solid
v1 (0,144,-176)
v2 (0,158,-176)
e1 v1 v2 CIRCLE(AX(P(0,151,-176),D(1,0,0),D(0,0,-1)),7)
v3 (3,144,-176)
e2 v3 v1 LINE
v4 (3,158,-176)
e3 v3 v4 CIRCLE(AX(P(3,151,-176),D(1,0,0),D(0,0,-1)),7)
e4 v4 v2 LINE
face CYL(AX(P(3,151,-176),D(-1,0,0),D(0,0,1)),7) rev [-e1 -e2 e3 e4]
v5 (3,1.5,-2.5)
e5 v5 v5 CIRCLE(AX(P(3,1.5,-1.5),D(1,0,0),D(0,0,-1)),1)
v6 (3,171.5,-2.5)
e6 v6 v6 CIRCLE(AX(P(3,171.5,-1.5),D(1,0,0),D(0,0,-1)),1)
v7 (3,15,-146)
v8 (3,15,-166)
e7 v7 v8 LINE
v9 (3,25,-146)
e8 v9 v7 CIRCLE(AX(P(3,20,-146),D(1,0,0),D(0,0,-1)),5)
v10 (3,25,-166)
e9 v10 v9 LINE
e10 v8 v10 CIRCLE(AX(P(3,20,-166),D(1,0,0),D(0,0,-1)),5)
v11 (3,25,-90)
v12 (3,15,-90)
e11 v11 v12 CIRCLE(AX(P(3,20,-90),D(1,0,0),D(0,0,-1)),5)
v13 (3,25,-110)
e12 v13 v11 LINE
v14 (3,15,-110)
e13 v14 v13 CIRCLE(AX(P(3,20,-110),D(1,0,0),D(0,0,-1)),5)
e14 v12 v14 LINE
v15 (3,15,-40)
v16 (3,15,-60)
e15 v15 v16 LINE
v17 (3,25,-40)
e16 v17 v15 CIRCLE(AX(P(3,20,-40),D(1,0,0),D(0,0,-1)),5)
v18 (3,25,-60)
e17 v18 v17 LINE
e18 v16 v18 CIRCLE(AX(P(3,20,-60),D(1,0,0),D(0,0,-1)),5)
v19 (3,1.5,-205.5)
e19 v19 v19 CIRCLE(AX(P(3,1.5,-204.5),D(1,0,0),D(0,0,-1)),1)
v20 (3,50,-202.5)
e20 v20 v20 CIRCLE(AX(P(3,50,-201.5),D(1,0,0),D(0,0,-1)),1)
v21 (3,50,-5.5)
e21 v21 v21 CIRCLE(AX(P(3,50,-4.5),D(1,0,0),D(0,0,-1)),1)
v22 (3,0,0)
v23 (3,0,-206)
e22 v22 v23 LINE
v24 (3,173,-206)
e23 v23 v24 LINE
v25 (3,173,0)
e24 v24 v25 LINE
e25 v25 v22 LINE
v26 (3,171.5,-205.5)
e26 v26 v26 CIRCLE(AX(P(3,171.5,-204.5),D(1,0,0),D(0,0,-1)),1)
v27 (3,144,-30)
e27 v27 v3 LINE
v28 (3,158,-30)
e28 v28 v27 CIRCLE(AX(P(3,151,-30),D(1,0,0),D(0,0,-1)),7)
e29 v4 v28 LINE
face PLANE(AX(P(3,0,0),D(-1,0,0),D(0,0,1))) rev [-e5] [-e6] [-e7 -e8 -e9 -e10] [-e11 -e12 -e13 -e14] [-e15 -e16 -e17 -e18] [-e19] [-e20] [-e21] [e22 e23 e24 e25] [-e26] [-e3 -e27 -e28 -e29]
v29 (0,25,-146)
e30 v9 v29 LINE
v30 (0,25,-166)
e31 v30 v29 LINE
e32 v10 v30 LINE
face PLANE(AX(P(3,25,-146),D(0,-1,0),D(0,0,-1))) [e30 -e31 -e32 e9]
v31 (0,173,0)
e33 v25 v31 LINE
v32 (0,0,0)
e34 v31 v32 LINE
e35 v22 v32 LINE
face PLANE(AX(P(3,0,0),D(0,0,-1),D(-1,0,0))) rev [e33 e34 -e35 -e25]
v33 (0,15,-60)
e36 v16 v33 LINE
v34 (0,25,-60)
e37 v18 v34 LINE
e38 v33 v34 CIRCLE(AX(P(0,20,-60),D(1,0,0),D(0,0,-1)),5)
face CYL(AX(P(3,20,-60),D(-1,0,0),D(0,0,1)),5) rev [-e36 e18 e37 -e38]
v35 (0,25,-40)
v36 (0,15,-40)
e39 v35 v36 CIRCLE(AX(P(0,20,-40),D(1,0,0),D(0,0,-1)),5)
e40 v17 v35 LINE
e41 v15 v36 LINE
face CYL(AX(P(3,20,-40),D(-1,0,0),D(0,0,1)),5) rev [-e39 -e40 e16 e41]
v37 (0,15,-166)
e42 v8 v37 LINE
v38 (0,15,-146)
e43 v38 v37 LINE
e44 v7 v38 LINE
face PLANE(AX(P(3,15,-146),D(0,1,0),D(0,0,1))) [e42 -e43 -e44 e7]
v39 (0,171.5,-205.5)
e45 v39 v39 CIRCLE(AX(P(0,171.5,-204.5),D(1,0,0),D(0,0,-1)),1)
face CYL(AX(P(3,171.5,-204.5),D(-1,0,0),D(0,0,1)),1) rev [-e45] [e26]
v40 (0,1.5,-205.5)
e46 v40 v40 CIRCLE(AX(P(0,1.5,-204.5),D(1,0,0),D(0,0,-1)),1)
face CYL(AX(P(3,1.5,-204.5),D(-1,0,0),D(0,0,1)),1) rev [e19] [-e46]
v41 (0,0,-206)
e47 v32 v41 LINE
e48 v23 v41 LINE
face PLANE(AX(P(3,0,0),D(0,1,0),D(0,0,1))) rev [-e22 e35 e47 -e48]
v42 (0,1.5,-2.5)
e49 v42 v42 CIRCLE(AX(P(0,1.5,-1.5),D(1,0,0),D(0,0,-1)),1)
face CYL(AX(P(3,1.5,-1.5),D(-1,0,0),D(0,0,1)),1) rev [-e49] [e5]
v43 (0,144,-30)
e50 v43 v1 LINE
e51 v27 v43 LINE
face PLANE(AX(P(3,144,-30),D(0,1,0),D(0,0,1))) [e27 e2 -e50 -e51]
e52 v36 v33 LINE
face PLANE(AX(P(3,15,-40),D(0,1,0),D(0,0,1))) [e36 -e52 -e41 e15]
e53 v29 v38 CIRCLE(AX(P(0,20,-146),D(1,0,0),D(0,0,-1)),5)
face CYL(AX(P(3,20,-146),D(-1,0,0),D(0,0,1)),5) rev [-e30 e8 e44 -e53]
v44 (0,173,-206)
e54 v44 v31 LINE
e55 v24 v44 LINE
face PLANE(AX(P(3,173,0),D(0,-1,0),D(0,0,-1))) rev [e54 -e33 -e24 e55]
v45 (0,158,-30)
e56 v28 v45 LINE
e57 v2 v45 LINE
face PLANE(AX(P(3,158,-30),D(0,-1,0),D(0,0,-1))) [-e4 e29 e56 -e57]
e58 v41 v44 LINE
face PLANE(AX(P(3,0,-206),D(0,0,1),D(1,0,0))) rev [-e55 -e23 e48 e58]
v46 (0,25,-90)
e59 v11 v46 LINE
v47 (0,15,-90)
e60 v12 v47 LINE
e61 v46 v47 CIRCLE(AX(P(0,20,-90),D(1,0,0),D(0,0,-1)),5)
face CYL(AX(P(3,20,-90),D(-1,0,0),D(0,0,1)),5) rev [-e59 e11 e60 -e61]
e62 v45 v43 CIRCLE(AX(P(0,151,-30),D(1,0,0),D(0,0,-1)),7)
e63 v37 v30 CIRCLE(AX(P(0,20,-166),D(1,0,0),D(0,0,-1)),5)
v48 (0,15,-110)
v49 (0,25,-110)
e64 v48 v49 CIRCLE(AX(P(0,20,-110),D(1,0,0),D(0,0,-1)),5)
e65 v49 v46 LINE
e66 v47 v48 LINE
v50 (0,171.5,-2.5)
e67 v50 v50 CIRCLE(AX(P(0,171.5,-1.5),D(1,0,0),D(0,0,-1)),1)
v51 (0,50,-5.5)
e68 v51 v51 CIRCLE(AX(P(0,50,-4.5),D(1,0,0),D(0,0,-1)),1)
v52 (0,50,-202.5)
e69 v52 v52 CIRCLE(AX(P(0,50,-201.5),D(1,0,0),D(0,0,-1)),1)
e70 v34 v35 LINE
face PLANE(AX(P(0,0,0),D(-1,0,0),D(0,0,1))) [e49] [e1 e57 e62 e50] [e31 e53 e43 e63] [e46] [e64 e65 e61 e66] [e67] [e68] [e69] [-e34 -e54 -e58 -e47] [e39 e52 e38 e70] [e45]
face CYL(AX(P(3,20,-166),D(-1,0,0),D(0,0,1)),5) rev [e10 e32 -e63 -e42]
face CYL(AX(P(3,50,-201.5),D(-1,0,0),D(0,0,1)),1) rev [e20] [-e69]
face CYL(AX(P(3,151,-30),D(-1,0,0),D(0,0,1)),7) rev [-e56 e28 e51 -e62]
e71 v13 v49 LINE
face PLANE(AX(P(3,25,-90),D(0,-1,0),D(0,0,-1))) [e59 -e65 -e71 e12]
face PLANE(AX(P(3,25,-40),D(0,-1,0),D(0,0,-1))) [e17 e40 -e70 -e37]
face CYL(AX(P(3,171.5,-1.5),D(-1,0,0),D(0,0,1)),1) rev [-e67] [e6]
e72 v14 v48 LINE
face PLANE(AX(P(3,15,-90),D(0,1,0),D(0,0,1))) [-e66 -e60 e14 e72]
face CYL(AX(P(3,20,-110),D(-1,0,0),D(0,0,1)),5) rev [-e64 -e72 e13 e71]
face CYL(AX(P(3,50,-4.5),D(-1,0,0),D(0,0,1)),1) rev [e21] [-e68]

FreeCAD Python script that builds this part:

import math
import FreeCAD as App
import Part
import Sketcher
from FreeCAD import Vector

doc = App.newDocument("Part")
body = doc.addObject("PartDesign::Body", "Body")

# Sketch on YZ plane
sketch1 = body.newObject("Sketcher::SketchObject", "Sketch")
sketch1.AttachmentSupport = (doc.getObject("YZ_Plane"), [""])
sketch1.MapMode = "FlatFace"
sketch1.addGeometry(Part.LineSegment(Vector(173, 0, 0), Vector(0, 0, 0)), False)
sketch1.addGeometry(Part.LineSegment(Vector(0, 0, 0), Vector(0, -206, 0)), False)
sketch1.addGeometry(Part.LineSegment(Vector(0, -206, 0), Vector(173, -206, 0)), False)
sketch1.addGeometry(Part.LineSegment(Vector(173, -206, 0), Vector(173, 0, 0)), False)
sketch1.addGeometry(Part.Circle(Vector(1.5, -1.5, 0), Vector(0, 0, 1), 1), False)
sketch1.addGeometry(Part.ArcOfCircle(Part.Circle(Vector(20, -40, 0), Vector(0, 0, 1), 5), math.radians(0), math.radians(180)), False)
sketch1.addGeometry(Part.LineSegment(Vector(25, -40, 0), Vector(25, -60, 0)), False)
sketch1.addGeometry(Part.ArcOfCircle(Part.Circle(Vector(20, -60, 0), Vector(0, 0, 1), 5), math.radians(180), math.radians(360)), False)
sketch1.addGeometry(Part.LineSegment(Vector(15, -60, 0), Vector(15, -40, 0)), False)
sketch1.addGeometry(Part.ArcOfCircle(Part.Circle(Vector(20, -90, 0), Vector(0, 0, 1), 5), math.radians(0), math.radians(180)), False)
sketch1.addGeometry(Part.LineSegment(Vector(25, -90, 0), Vector(25, -110, 0)), False)
sketch1.addGeometry(Part.ArcOfCircle(Part.Circle(Vector(20, -110, 0), Vector(0, 0, 1), 5), math.radians(180), math.radians(360)), False)
sketch1.addGeometry(Part.LineSegment(Vector(15, -110, 0), Vector(15, -90, 0)), False)
sketch1.addGeometry(Part.Circle(Vector(50, -4.5, 0), Vector(0, 0, 1), 1), False)
sketch1.addGeometry(Part.ArcOfCircle(Part.Circle(Vector(20, -146, 0), Vector(0, 0, 1), 5), math.radians(0), math.radians(180)), False)
sketch1.addGeometry(Part.LineSegment(Vector(25, -146, 0), Vector(25, -166, 0)), False)
sketch1.addGeometry(Part.ArcOfCircle(Part.Circle(Vector(20, -166, 0), Vector(0, 0, 1), 5), math.radians(180), math.radians(360)), False)
sketch1.addGeometry(Part.LineSegment(Vector(15, -166, 0), Vector(15, -146, 0)), False)
sketch1.addGeometry(Part.Circle(Vector(1.5, -204.5, 0), Vector(0, 0, 1), 1), False)
sketch1.addGeometry(Part.Circle(Vector(50, -201.5, 0), Vector(0, 0, 1), 1), False)
sketch1.addGeometry(Part.Circle(Vector(171.5, -1.5, 0), Vector(0, 0, 1), 1), False)
sketch1.addGeometry(Part.ArcOfCircle(Part.Circle(Vector(151, -30, 0), Vector(0, 0, 1), 7), math.radians(0), math.radians(180)), False)
sketch1.addGeometry(Part.LineSegment(Vector(158, -30, 0), Vector(158, -176, 0)), False)
sketch1.addGeometry(Part.ArcOfCircle(Part.Circle(Vector(151, -176, 0), Vector(0, 0, 1), 7), math.radians(180), math.radians(360)), False)
sketch1.addGeometry(Part.LineSegment(Vector(144, -176, 0), Vector(144, -30, 0)), False)
sketch1.addGeometry(Part.Circle(Vector(171.5, -204.5, 0), Vector(0, 0, 1), 1), False)
sketch1.addConstraint(Sketcher.Constraint("Coincident", 0, 2, 1, 1))
sketch1.addConstraint(Sketcher.Constraint("Coincident", 1, 2, 2, 1))
sketch1.addConstraint(Sketcher.Constraint("Coincident", 2, 2, 3, 1))
sketch1.addConstraint(Sketcher.Constraint("Coincident", 3, 2, 0, 1))
sketch1.addConstraint(Sketcher.Constraint("Tangent", 5, 1, 6, 1))
sketch1.addConstraint(Sketcher.Constraint("Tangent", 6, 2, 7, 2))
sketch1.addConstraint(Sketcher.Constraint("Tangent", 7, 1, 8, 1))
sketch1.addConstraint(Sketcher.Constraint("Tangent", 8, 2, 5, 2))
sketch1.addConstraint(Sketcher.Constraint("Tangent", 9, 1, 10, 1))
sketch1.addConstraint(Sketcher.Constraint("Tangent", 10, 2, 11, 2))
sketch1.addConstraint(Sketcher.Constraint("Tangent", 11, 1, 12, 1))
sketch1.addConstraint(Sketcher.Constraint("Tangent", 12, 2, 9, 2))
sketch1.addConstraint(Sketcher.Constraint("Tangent", 14, 1, 15, 1))
sketch1.addConstraint(Sketcher.Constraint("Tangent", 15, 2, 16, 2))
sketch1.addConstraint(Sketcher.Constraint("Tangent", 16, 1, 17, 1))
sketch1.addConstraint(Sketcher.Constraint("Tangent", 17, 2, 14, 2))
sketch1.addConstraint(Sketcher.Constraint("Tangent", 21, 1, 22, 1))
sketch1.addConstraint(Sketcher.Constraint("Tangent", 22, 2, 23, 2))
sketch1.addConstraint(Sketcher.Constraint("Tangent", 23, 1, 24, 1))
sketch1.addConstraint(Sketcher.Constraint("Tangent", 24, 2, 21, 2))
sketch1.addConstraint(Sketcher.Constraint("Horizontal", 0))
sketch1.addConstraint(Sketcher.Constraint("Vertical", 1))
sketch1.addConstraint(Sketcher.Constraint("Horizontal", 2))
sketch1.addConstraint(Sketcher.Constraint("Vertical", 3))
sketch1.addConstraint(Sketcher.Constraint("Vertical", 6))
sketch1.addConstraint(Sketcher.Constraint("Vertical", 8))
sketch1.addConstraint(Sketcher.Constraint("Vertical", 10))
sketch1.addConstraint(Sketcher.Constraint("Vertical", 12))
sketch1.addConstraint(Sketcher.Constraint("Vertical", 15))
sketch1.addConstraint(Sketcher.Constraint("Vertical", 17))
sketch1.addConstraint(Sketcher.Constraint("Vertical", 22))
sketch1.addConstraint(Sketcher.Constraint("Vertical", 24))
sketch1.addConstraint(Sketcher.Constraint("Coincident", 0, 2, -1, 1))
sketch1.addConstraint(Sketcher.Constraint("Equal", 7, 9))
sketch1.addConstraint(Sketcher.Constraint("Equal", 4, 13))
sketch1.addConstraint(Sketcher.Constraint("Equal", 11, 14))
sketch1.addConstraint(Sketcher.Constraint("Equal", 13, 18))
sketch1.addConstraint(Sketcher.Constraint("Equal", 18, 19))
sketch1.addConstraint(Sketcher.Constraint("Equal", 19, 20))
sketch1.addConstraint(Sketcher.Constraint("Equal", 20, 25))
sketch1.addConstraint(Sketcher.Constraint("Horizontal", 4, 3, 20, 3))
sketch1.addConstraint(Sketcher.Constraint("Horizontal", 18, 3, 25, 3))
sketch1.addConstraint(Sketcher.Constraint("Vertical", 7, 3, 9, 3))
sketch1.addConstraint(Sketcher.Constraint("Vertical", 11, 3, 14, 3))
sketch1.addConstraint(Sketcher.Constraint("Vertical", 4, 3, 18, 3))
sketch1.addConstraint(Sketcher.Constraint("Vertical", 13, 3, 19, 3))
sketch1.addConstraint(Sketcher.Constraint("Vertical", 20, 3, 25, 3))
sketch1.addConstraint(Sketcher.Constraint("Equal", 8, 10))
sketch1.addConstraint(Sketcher.Constraint("Equal", 12, 15))
sketch1.addConstraint(Sketcher.Constraint("Diameter", 4, 2.0))
sketch1.addConstraint(Sketcher.Constraint("Radius", 5, 5.0))
sketch1.addConstraint(Sketcher.Constraint("Radius", 21, 7.0))
sketch1.addConstraint(Sketcher.Constraint("DistanceX", 0, 2, 0, 1, 173.0))
sketch1.addConstraint(Sketcher.Constraint("DistanceY", 1, 2, 1, 1, 206.0))
sketch1.addConstraint(Sketcher.Constraint("DistanceY", 6, 2, 6, 1, 20.0))
sketch1.addConstraint(Sketcher.Constraint("DistanceY", 22, 2, 22, 1, 146.0))
sketch1.addConstraint(Sketcher.Constraint("DistanceX", -1, 1, 5, 3, 20.0))
sketch1.addConstraint(Sketcher.Constraint("DistanceY", 5, 3, -1, 1, 40.0))
sketch1.addConstraint(Sketcher.Constraint("DistanceY", 9, 3, -1, 1, 90.0))
sketch1.addConstraint(Sketcher.Constraint("DistanceX", -1, 1, 13, 3, 50.0))
sketch1.addConstraint(Sketcher.Constraint("DistanceY", 14, 3, -1, 1, 146.0))
sketch1.addConstraint(Sketcher.Constraint("DistanceX", -1, 1, 21, 3, 151.0))
sketch1.addConstraint(Sketcher.Constraint("DistanceY", 21, 3, -1, 1, 30.0))
sketch1.addConstraint(Sketcher.Constraint("DistanceY", 13, 3, 4, 3, 3.0))
sketch1.addConstraint(Sketcher.Constraint("DistanceY", 18, 3, 19, 3, 3.0))
sketch1.addConstraint(Sketcher.Constraint("DistanceX", 4, 3, 20, 3, 170.0))
sketch1.addConstraint(Sketcher.Constraint("DistanceX", -1, 1, 4, 3, 1.5))
sketch1.addConstraint(Sketcher.Constraint("DistanceY", 4, 3, -1, 1, 1.5))
sketch1.addConstraint(Sketcher.Constraint("DistanceY", 18, 3, -1, 1, 204.5))
pad1 = body.newObject("PartDesign::Pad", "Pad")
pad1.Profile = sketch1
pad1.Length = 3

doc.recompute()
